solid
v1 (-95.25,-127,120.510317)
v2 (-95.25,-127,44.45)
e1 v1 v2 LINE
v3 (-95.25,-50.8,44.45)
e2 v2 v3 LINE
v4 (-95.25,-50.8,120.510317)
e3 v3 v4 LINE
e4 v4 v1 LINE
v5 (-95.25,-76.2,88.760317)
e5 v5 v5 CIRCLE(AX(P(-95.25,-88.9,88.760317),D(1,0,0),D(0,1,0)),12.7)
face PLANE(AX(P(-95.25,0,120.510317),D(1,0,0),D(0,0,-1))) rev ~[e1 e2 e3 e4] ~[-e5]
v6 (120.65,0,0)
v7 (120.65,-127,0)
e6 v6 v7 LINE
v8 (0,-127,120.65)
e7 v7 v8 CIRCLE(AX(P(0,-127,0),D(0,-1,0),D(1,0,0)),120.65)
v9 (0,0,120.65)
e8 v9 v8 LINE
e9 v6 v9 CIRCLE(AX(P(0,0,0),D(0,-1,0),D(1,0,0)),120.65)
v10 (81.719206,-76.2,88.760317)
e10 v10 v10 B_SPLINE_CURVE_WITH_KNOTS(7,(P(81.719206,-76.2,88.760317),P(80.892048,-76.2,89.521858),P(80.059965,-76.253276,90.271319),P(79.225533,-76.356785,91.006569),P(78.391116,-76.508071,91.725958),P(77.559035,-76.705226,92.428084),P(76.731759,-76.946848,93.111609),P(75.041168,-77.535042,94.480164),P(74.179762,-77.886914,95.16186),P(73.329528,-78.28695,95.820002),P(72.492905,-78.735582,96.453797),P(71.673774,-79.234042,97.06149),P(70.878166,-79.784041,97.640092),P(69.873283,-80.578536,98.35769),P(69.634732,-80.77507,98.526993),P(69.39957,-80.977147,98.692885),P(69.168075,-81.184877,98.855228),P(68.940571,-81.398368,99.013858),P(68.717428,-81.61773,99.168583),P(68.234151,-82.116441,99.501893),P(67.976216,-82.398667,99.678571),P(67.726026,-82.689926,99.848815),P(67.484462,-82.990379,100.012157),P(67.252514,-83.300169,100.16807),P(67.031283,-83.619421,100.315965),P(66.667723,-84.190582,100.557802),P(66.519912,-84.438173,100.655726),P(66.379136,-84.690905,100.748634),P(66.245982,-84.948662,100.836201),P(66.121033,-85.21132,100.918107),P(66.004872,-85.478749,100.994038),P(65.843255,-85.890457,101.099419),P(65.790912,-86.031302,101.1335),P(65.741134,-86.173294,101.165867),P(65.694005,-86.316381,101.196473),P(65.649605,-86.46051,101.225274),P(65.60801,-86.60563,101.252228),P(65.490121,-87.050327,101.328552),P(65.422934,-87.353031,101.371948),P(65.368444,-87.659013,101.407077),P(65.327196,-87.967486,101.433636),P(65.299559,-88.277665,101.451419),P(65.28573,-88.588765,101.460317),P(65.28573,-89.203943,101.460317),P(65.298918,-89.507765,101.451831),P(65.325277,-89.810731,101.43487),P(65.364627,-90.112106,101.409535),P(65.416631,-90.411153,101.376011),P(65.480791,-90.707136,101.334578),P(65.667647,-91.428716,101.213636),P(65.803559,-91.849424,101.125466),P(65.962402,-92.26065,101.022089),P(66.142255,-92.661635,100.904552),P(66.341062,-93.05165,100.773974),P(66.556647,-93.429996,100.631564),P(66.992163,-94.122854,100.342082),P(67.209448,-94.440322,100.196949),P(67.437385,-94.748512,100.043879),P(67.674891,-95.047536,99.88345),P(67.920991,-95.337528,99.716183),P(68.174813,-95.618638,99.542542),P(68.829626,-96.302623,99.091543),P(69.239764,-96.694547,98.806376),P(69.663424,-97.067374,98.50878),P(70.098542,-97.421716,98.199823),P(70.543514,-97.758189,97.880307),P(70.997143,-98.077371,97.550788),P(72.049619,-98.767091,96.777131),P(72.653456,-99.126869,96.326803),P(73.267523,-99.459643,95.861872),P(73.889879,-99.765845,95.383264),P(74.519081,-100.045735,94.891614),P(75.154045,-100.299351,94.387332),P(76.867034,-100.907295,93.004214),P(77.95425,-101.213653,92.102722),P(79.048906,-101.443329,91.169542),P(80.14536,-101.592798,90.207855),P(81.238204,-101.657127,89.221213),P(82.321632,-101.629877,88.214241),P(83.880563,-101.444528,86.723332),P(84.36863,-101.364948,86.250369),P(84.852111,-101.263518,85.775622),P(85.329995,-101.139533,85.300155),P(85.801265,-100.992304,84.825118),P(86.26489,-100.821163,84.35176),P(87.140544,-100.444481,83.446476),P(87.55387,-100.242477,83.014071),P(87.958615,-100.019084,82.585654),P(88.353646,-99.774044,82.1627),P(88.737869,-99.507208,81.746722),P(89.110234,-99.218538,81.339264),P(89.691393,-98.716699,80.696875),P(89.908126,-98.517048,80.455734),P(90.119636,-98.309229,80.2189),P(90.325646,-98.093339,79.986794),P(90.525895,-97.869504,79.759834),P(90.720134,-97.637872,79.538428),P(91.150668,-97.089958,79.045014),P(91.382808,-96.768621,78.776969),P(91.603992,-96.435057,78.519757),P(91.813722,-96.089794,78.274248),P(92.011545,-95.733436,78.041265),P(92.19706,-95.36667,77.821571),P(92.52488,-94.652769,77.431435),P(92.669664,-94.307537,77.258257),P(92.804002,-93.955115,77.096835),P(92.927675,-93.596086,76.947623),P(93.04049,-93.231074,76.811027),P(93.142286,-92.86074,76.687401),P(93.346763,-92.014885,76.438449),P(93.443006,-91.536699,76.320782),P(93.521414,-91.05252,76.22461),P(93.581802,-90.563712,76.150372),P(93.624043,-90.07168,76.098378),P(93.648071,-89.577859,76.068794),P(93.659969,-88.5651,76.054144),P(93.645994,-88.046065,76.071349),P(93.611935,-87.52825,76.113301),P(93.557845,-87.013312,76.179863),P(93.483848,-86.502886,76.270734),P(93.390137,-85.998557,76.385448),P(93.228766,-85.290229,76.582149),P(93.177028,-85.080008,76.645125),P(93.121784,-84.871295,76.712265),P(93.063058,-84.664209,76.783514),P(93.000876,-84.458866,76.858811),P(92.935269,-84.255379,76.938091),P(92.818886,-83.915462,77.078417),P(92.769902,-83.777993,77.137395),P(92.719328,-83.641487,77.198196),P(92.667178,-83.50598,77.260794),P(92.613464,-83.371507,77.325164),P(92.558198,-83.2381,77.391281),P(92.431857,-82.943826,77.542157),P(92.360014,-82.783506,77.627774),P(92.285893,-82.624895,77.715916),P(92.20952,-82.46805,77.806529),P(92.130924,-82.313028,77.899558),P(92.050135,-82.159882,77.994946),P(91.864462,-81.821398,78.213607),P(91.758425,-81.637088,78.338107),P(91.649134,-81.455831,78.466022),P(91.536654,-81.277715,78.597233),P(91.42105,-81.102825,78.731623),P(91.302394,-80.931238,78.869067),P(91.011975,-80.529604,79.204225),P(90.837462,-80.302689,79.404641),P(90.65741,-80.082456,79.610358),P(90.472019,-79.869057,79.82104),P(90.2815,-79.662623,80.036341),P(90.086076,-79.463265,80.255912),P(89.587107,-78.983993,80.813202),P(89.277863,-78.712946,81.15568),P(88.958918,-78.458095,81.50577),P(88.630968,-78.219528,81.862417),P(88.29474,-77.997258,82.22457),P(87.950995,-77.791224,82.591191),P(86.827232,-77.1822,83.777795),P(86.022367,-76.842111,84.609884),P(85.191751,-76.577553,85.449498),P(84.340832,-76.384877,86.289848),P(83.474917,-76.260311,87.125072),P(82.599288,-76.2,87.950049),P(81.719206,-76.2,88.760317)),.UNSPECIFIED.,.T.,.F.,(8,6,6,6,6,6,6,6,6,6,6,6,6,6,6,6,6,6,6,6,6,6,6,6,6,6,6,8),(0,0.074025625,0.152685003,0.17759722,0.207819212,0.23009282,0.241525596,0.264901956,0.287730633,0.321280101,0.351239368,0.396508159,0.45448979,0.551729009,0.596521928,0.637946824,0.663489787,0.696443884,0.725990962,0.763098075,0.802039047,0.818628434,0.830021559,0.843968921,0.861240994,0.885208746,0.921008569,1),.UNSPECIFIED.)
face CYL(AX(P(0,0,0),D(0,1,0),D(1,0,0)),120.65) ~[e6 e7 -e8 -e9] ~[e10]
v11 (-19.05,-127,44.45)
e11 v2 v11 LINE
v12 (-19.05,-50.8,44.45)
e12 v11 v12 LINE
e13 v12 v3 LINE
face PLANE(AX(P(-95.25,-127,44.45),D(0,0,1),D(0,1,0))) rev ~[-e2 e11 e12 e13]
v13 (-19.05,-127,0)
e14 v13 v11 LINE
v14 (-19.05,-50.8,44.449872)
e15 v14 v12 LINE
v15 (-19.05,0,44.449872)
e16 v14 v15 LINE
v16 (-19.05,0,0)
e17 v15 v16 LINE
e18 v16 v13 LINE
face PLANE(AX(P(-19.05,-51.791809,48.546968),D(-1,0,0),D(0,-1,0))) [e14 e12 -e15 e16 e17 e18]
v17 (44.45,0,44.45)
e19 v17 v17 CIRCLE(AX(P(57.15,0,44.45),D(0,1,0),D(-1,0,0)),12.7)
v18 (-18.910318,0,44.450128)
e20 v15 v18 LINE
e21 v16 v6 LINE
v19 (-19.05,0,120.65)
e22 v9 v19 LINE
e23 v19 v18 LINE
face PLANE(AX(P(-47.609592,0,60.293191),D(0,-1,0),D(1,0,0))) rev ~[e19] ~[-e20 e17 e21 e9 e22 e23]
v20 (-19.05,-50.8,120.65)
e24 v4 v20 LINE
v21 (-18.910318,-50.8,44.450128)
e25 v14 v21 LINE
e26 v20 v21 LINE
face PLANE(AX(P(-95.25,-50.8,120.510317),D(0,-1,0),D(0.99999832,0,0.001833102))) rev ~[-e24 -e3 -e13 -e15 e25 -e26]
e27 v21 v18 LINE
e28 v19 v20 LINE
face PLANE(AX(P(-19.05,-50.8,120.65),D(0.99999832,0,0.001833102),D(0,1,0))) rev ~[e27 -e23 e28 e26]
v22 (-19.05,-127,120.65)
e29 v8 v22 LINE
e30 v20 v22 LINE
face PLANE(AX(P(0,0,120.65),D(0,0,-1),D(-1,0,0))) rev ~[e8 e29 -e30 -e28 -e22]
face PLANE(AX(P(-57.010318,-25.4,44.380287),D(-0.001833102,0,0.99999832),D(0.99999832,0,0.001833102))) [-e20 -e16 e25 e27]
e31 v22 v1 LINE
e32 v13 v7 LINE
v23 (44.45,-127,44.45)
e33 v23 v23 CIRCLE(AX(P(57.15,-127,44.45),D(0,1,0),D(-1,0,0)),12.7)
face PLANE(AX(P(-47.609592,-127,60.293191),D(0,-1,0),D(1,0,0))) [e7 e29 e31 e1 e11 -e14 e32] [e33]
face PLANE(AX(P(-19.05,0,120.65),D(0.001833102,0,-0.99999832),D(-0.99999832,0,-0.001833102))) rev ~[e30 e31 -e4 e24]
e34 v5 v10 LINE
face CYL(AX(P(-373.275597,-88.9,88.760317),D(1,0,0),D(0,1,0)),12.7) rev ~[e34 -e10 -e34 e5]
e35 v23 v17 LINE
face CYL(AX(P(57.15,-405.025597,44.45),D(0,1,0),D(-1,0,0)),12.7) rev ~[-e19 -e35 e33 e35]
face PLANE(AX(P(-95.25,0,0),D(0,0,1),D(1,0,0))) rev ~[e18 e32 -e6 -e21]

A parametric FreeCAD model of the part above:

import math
import FreeCAD as App
import Part
import Sketcher
from FreeCAD import Vector
Q = App.Units.Quantity


def add_polygon(sketch, points):
    """Adds a closed chain of lines whose ends are joined by coincident constraints."""
    first, n = sketch.GeometryCount, len(points)
    for a, b in zip(points, points[1:] + points[:1]):
        sketch.addGeometry(Part.LineSegment(App.Vector(*a, 0), App.Vector(*b, 0)), False)
    for i in range(n):
        sketch.addConstraint(Sketcher.Constraint("Coincident", first + i, 2, first + (i + 1) % n, 1))

doc = App.newDocument("Part")
params = doc.addObject("Spreadsheet::Sheet", "Params")
for row, (alias, value) in enumerate([
    ("sketch1_radius", "4.75 in"),
    ("sketch1_width", "8.5 in"),
    ("pad1_length", "5 in"),
    ("sketch2_width", "2 in"),
    ("sketch2_width2", "5 in"),
    ("sketch2_height", "1.75 in"),
    ("pocket1_length", "3 in"),
    ("sketch3_height", "2 in"),
    ("pocket2_length", "3 in"),
    ("sketch4_diameter", "1 in"),
    ("hole_diameter", "1 in"),
    ("sketch5_diameter", "1 in"),
    ("hole2_diameter", "1 in"),
], start=1):
    params.set(f"A{row}", alias)
    params.set(f"B{row}", "=" + value)
    params.setAlias(f"B{row}", alias)

body = doc.addObject("PartDesign::Body", "Body")

# Sketch on XZ plane
sketch1 = doc.addObject("Sketcher::SketchObject", "Sketch")
body.addObject(sketch1)
sketch1.AttachmentSupport = (doc.XZ_Plane, [""])
sketch1.MapMode = "FlatFace"
sketch1.addGeometry(Part.LineSegment(Vector(0, 121, 0), Vector(-19, 121, 0)), False)
sketch1.addGeometry(Part.LineSegment(Vector(-19, 121, 0), Vector(-95, 121, 0)), False)
sketch1.addGeometry(Part.LineSegment(Vector(-95, 121, 0), Vector(-95, 0, 0)), False)
sketch1.addGeometry(Part.LineSegment(Vector(-95, 0, 0), Vector(121, 0, 0)), False)
sketch1.addGeometry(Part.ArcOfCircle(Part.Circle(Vector(0, 0, 0), Vector(0, 0, 1), 121), math.radians(0), math.radians(90)), False)
sketch1.addConstraint(Sketcher.Constraint("Coincident", 0, 2, 1, 1))
sketch1.addConstraint(Sketcher.Constraint("Coincident", 1, 2, 2, 1))
sketch1.addConstraint(Sketcher.Constraint("Coincident", 2, 2, 3, 1))
sketch1.addConstraint(Sketcher.Constraint("Coincident", 3, 2, 4, 1))
sketch1.addConstraint(Sketcher.Constraint("Tangent", 4, 2, 0, 1))
sketch1.addConstraint(Sketcher.Constraint("Horizontal", 0))
sketch1.addConstraint(Sketcher.Constraint("Vertical", 2))
sketch1.addConstraint(Sketcher.Constraint("Horizontal", 3))
sketch1.addConstraint(Sketcher.Constraint("Coincident", 4, 3, -1, 1))
sketch1.addConstraint(Sketcher.Constraint("PointOnObject", 2, 2, -1))
sketch1.addConstraint(Sketcher.Constraint("Radius", 4, Q("4.75 in")))
sketch1.addConstraint(Sketcher.Constraint("DistanceX", 3, 1, 3, 2, Q("8.5 in")))
sketch1.addConstraint(Sketcher.Constraint("DistanceX", 1, 2, 0, 2, Q("3 in")))
sketch1.addConstraint(Sketcher.Constraint("DistanceY", 2, 2, 2, 1, 120.510317))
sketch1.setExpression("Constraints[10]", "Params.sketch1_radius")
sketch1.setExpression("Constraints[11]", "Params.sketch1_width")
pad1 = doc.addObject("PartDesign::Pad", "Pad")
body.addObject(pad1)
pad1.Profile = sketch1
pad1.setExpression("Length", "Params.pad1_length")

# Sketch on YZ plane
sketch2 = doc.addObject("Sketcher::SketchObject", "Sketch001")
body.addObject(sketch2)
sketch2.AttachmentSupport = (doc.YZ_Plane, [""])
sketch2.MapMode = "FlatFace"
sketch2.AttachmentOffset = App.Placement(Vector(0, 0, -3.75 * 25.4), App.Rotation())
add_polygon(sketch2, [(-51, 44), (-51, 121), (0, 121), (0, 0), (-127, 0), (-127, 44)])  # lines 0-5
sketch2.addConstraint(Sketcher.Constraint("Vertical", 0))
sketch2.addConstraint(Sketcher.Constraint("Horizontal", 1))
sketch2.addConstraint(Sketcher.Constraint("Vertical", 2))
sketch2.addConstraint(Sketcher.Constraint("Horizontal", 3))
sketch2.addConstraint(Sketcher.Constraint("Vertical", 4))
sketch2.addConstraint(Sketcher.Constraint("Horizontal", 5))
sketch2.addConstraint(Sketcher.Constraint("Coincident", 2, 2, -1, 1))
sketch2.addConstraint(Sketcher.Constraint("DistanceX", 1, 1, 1, 2, Q("2 in")))
sketch2.addConstraint(Sketcher.Constraint("DistanceX", 3, 2, 3, 1, Q("5 in")))
sketch2.addConstraint(Sketcher.Constraint("DistanceY", 4, 1, 4, 2, Q("1.75 in")))
sketch2.addConstraint(Sketcher.Constraint("DistanceY", 0, 1, 0, 2, 76.060317))
sketch2.setExpression("Constraints[13]", "Params.sketch2_width")
sketch2.setExpression("Constraints[14]", "Params.sketch2_width2")
sketch2.setExpression("Constraints[15]", "Params.sketch2_height")
pocket1 = doc.addObject("PartDesign::Pocket", "Pocket")
body.addObject(pocket1)
pocket1.Profile = sketch2
pocket1.setExpression("Length", "Params.pocket1_length")
pocket1.Reversed = True

# Sketch on an angled plane
sketch3 = doc.addObject("Sketcher::SketchObject", "Sketch002")
body.addObject(sketch3)
sketch3.Placement = App.Placement(Vector(-0.221227, 0, 120.684515), App.Rotation(Vector(0.99999832, 0, 0.001833102), Vector(0, 1, 0), Vector(-0.001833102, 0, 0.99999832), "ZXY"))
add_polygon(sketch3, [(-95, 0), (-95, -51), (-19, -51), (-19, 0)])  # lines 0-3
sketch3.addConstraint(Sketcher.Constraint("Vertical", 0))
sketch3.addConstraint(Sketcher.Constraint("Horizontal", 1))
sketch3.addConstraint(Sketcher.Constraint("Vertical", 2))
sketch3.addConstraint(Sketcher.Constraint("Horizontal", 3))
sketch3.addConstraint(Sketcher.Constraint("PointOnObject", 2, 2, -1))
sketch3.addConstraint(Sketcher.Constraint("DistanceY", 0, 2, 0, 1, Q("2 in")))
sketch3.addConstraint(Sketcher.Constraint("DistanceX", 1, 1, 1, 2, 76.200128))
sketch3.addConstraint(Sketcher.Constraint("DistanceX", 0, 2, -1, 1, 95.028932))
sketch3.setExpression("Constraints[9]", "Params.sketch3_height")
pocket2 = doc.addObject("PartDesign::Pocket", "Pocket001")
body.addObject(pocket2)
pocket2.Profile = sketch3
pocket2.setExpression("Length", "Params.pocket2_length")

# Sketch on YZ plane
sketch4 = doc.addObject("Sketcher::SketchObject", "Sketch003")
body.addObject(sketch4)
sketch4.AttachmentSupport = (doc.YZ_Plane, [""])
sketch4.MapMode = "FlatFace"
sketch4.AttachmentOffset = App.Placement(Vector(0, 0, -3.75 * 25.4), App.Rotation())
sketch4.addGeometry(Part.Circle(Vector(-89, 89, 0), Vector(0, 0, 1), 13), False)
sketch4.addConstraint(Sketcher.Constraint("Diameter", 0, Q("1 in")))
sketch4.addConstraint(Sketcher.Constraint("DistanceX", 0, 3, -1, 1, Q("3.5 in")))
sketch4.addConstraint(Sketcher.Constraint("DistanceY", -1, 1, 0, 3, 88.760317))
sketch4.setExpression("Constraints[0]", "Params.sketch4_diameter")
doc.recompute()
hole = doc.addObject("PartDesign::Hole", "Hole")
body.addObject(hole)
hole.Profile = sketch4
hole.ThreadType = "None"
hole.setExpression("Diameter", "Params.hole_diameter")
hole.DepthType = "ThroughAll"
hole.Reversed = True

# Sketch on XZ plane
sketch5 = doc.addObject("Sketcher::SketchObject", "Sketch004")
body.addObject(sketch5)
sketch5.AttachmentSupport = (doc.XZ_Plane, [""])
sketch5.MapMode = "FlatFace"
sketch5.AttachmentOffset = App.Placement(Vector(0, 0, 5 * 25.4), App.Rotation())
sketch5.addGeometry(Part.Circle(Vector(57, 44, 0), Vector(0, 0, 1), 13), False)
sketch5.addConstraint(Sketcher.Constraint("Diameter", 0, Q("1 in")))
sketch5.addConstraint(Sketcher.Constraint("DistanceX", -1, 1, 0, 3, Q("2.25 in")))
sketch5.addConstraint(Sketcher.Constraint("DistanceY", -1, 1, 0, 3, Q("1.75 in")))
sketch5.setExpression("Constraints[0]", "Params.sketch5_diameter")
doc.recompute()
hole2 = doc.addObject("PartDesign::Hole", "Hole001")
body.addObject(hole2)
hole2.Profile = sketch5
hole2.ThreadType = "None"
hole2.setExpression("Diameter", "Params.hole2_diameter")
hole2.DepthType = "ThroughAll"

doc.recompute()
